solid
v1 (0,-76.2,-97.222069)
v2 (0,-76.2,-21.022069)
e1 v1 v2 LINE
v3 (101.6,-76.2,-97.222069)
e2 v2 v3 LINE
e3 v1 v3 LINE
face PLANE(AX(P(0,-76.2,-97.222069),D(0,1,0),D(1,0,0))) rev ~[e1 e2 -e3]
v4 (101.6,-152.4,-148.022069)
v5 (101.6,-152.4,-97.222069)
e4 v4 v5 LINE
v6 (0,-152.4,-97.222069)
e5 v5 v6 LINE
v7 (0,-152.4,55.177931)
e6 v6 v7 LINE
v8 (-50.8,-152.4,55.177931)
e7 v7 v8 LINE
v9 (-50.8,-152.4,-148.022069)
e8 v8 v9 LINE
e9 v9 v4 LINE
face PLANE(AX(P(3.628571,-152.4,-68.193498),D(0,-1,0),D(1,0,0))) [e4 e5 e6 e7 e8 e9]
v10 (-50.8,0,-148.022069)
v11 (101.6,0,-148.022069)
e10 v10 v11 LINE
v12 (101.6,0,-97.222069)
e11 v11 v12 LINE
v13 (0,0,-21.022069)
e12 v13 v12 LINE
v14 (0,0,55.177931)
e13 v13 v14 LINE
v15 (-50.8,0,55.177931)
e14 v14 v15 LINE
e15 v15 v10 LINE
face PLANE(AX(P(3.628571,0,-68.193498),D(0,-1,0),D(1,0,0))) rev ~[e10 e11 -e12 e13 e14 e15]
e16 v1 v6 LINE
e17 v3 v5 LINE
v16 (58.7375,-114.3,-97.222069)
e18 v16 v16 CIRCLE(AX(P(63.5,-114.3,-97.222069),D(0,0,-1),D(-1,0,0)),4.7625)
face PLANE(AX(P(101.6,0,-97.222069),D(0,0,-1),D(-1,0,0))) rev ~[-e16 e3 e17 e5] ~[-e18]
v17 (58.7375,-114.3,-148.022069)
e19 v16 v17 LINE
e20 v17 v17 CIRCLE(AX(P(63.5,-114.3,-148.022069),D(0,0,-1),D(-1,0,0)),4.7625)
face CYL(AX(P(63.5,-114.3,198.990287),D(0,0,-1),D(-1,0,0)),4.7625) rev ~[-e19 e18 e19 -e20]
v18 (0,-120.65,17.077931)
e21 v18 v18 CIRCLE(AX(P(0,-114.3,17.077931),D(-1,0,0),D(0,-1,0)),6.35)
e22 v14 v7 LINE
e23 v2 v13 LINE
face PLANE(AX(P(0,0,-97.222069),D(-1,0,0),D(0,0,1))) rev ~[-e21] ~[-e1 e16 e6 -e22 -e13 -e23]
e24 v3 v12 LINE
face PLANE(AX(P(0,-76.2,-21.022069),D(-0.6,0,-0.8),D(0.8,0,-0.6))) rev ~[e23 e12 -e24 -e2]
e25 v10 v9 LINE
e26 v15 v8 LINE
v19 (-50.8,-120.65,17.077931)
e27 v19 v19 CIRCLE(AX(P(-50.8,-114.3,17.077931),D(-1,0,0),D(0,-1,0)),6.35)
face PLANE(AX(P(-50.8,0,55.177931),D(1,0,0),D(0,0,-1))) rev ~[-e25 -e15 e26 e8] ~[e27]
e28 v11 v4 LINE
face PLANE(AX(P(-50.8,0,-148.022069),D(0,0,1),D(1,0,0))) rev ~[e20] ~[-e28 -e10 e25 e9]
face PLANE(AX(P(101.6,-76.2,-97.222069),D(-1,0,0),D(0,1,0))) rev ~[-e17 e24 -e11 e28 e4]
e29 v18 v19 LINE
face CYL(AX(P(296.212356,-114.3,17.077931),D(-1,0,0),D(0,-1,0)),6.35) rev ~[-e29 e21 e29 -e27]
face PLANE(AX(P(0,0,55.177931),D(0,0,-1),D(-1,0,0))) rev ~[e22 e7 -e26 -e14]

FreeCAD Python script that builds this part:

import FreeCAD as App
import Part
import Sketcher
Q = App.Units.Quantity

doc = App.newDocument("Part")
body = doc.addObject("PartDesign::Body", "Body")

# Sketch on XZ plane
sketch1 = body.newObject("Sketcher::SketchObject", "Sketch")
sketch1.AttachmentSupport = (doc.getObject("XZ_Plane"), [""])
sketch1.MapMode = "FlatFace"
sketch1.addGeometry([
    Part.LineSegment(App.Vector(0, 55, 0), App.Vector(-51, 55, 0)),  # 0
    Part.LineSegment(App.Vector(-51, 55, 0), App.Vector(-51, -148, 0)),  # 1
    Part.LineSegment(App.Vector(-51, -148, 0), App.Vector(102, -148, 0)),  # 2
    Part.LineSegment(App.Vector(102, -148, 0), App.Vector(102, -97, 0)),  # 3
    Part.LineSegment(App.Vector(102, -97, 0), App.Vector(0, -97, 0)),  # 4
    Part.LineSegment(App.Vector(0, -97, 0), App.Vector(0, 55, 0)),  # 5
], False)
sketch1.addConstraint([
    Sketcher.Constraint("Coincident", 0, 2, 1, 1),
    Sketcher.Constraint("Coincident", 1, 2, 2, 1),
    Sketcher.Constraint("Coincident", 2, 2, 3, 1),
    Sketcher.Constraint("Coincident", 3, 2, 4, 1),
    Sketcher.Constraint("Coincident", 4, 2, 5, 1),
    Sketcher.Constraint("Coincident", 5, 2, 0, 1),
    Sketcher.Constraint("Horizontal", 0),
    Sketcher.Constraint("Vertical", 1),
    Sketcher.Constraint("Horizontal", 2),
    Sketcher.Constraint("Vertical", 3),
    Sketcher.Constraint("Horizontal", 4),
    Sketcher.Constraint("Vertical", 5),
    Sketcher.Constraint("PointOnObject", 4, 2, -2),
    Sketcher.Constraint("Equal", 0, 3),
    Sketcher.Constraint("Equal", 2, 5),
    Sketcher.Constraint("DistanceX", 0, 2, 0, 1, Q("2 in")),
    Sketcher.Constraint("DistanceX", 2, 1, 2, 2, Q("6 in")),
    Sketcher.Constraint("DistanceY", -1, 1, 0, 2, Q("55.177931 mm")),
])
pad1 = body.newObject("PartDesign::Pad", "Pad")
pad1.Profile = sketch1
pad1.Length = Q("6 in")

# Sketch on XY plane
sketch2 = body.newObject("Sketcher::SketchObject", "Sketch001")
sketch2.AttachmentSupport = (doc.getObject("XY_Plane"), [""])
sketch2.MapMode = "FlatFace"
sketch2.AttachmentOffset = App.Placement(App.Vector(0, 0, -97.222069), App.Rotation())
sketch2.addGeometry([
    Part.LineSegment(App.Vector(0, 0, 0), App.Vector(0, -76, 0)),
    Part.LineSegment(App.Vector(0, -76, 0), App.Vector(102, -76, 0)),
    Part.LineSegment(App.Vector(102, -76, 0), App.Vector(102, 0, 0)),
    Part.LineSegment(App.Vector(102, 0, 0), App.Vector(0, 0, 0)),
], False)
sketch2.addConstraint([
    Sketcher.Constraint("Coincident", 0, 2, 1, 1),
    Sketcher.Constraint("Coincident", 1, 2, 2, 1),
    Sketcher.Constraint("Coincident", 2, 2, 3, 1),
    Sketcher.Constraint("Coincident", 3, 2, 0, 1),
    Sketcher.Constraint("Vertical", 0),
    Sketcher.Constraint("Horizontal", 1),
    Sketcher.Constraint("Vertical", 2),
    Sketcher.Constraint("Horizontal", 3),
    Sketcher.Constraint("Coincident", 3, 2, -1, 1),
    Sketcher.Constraint("DistanceX", 1, 1, 1, 2, Q("4 in")),
    Sketcher.Constraint("DistanceY", 0, 2, 0, 1, Q("3 in")),
])
pad2 = body.newObject("PartDesign::Pad", "Pad001")
pad2.Profile = sketch2
pad2.Length = Q("3 in")

# Sketch on XZ plane
sketch3 = body.newObject("Sketcher::SketchObject", "Sketch002")
sketch3.AttachmentSupport = (doc.getObject("XZ_Plane"), [""])
sketch3.MapMode = "FlatFace"
sketch3.AttachmentOffset = App.Placement(App.Vector(0, 0, 3 * 25.4), App.Rotation())
sketch3.addGeometry([
    Part.LineSegment(App.Vector(102, -21, 0), App.Vector(0, -21, 0)),
    Part.LineSegment(App.Vector(0, -21, 0), App.Vector(102, -97, 0)),
    Part.LineSegment(App.Vector(102, -97, 0), App.Vector(102, -21, 0)),
], False)
sketch3.addConstraint([
    Sketcher.Constraint("Coincident", 0, 2, 1, 1),
    Sketcher.Constraint("Coincident", 1, 2, 2, 1),
    Sketcher.Constraint("Coincident", 2, 2, 0, 1),
    Sketcher.Constraint("Horizontal", 0),
    Sketcher.Constraint("Vertical", 2),
    Sketcher.Constraint("PointOnObject", 0, 2, -2),
    Sketcher.Constraint("DistanceX", 0, 2, 0, 1, Q("4 in")),
    Sketcher.Constraint("DistanceY", 2, 1, 2, 2, Q("3 in")),
    Sketcher.Constraint("DistanceY", 0, 2, -1, 1, Q("21.022069 mm")),
])
pocket1 = body.newObject("PartDesign::Pocket", "Pocket")
pocket1.Profile = sketch3
pocket1.Length = Q("3 in")

# Sketch on XY plane
sketch4 = body.newObject("Sketcher::SketchObject", "Sketch003")
sketch4.AttachmentSupport = (doc.getObject("XY_Plane"), [""])
sketch4.MapMode = "FlatFace"
sketch4.AttachmentOffset = App.Placement(App.Vector(0, 0, -97.222069), App.Rotation())
sketch4.addGeometry(Part.Circle(App.Vector(63.5, -114.3, 0), App.Vector(0, 0, 1), 4.8), False)
sketch4.addConstraint([
    Sketcher.Constraint("Diameter", 0, Q("0.375 in")),
    Sketcher.Constraint("DistanceX", -1, 1, 0, 3, Q("2.5 in")),
    Sketcher.Constraint("DistanceY", 0, 3, -1, 1, Q("4.5 in")),
])
doc.recompute()
hole = body.newObject("PartDesign::Hole", "Hole")
hole.Profile = sketch4
hole.ThreadType = "None"
hole.Diameter = Q("0.375 in")
hole.DepthType = "ThroughAll"

# Sketch on YZ plane
sketch5 = body.newObject("Sketcher::SketchObject", "Sketch004")
sketch5.AttachmentSupport = (doc.getObject("YZ_Plane"), [""])
sketch5.MapMode = "FlatFace"
sketch5.addGeometry(Part.Circle(App.Vector(-114, 17, 0), App.Vector(0, 0, 1), 6), False)
sketch5.addConstraint([
    Sketcher.Constraint("Diameter", 0, Q("0.5 in")),
    Sketcher.Constraint("DistanceX", 0, 3, -1, 1, Q("4.5 in")),
    Sketcher.Constraint("DistanceY", -1, 1, 0, 3, Q("17.077931 mm")),
])
doc.recompute()
hole2 = body.newObject("PartDesign::Hole", "Hole001")
hole2.Profile = sketch5
hole2.ThreadType = "None"
hole2.Diameter = Q("0.5 in")
hole2.DepthType = "ThroughAll"

doc.recompute()
